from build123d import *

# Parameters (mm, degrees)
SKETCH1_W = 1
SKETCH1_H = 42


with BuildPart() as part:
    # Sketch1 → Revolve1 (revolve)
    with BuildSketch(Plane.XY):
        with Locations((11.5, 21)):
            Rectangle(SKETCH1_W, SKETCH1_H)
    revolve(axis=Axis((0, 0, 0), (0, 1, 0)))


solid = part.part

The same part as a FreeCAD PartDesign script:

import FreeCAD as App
import Part
import Sketcher

V = App.Vector


def add_polygon(sketch, points):
    """Adds a closed chain of lines whose ends are joined by coincident constraints."""
    first, n = sketch.GeometryCount, len(points)
    for a, b in zip(points, points[1:] + points[:1]):
        sketch.addGeometry(Part.LineSegment(App.Vector(*a, 0), App.Vector(*b, 0)), False)
    for i in range(n):
        sketch.addConstraint(Sketcher.Constraint("Coincident", first + i, 2, first + (i + 1) % n, 1))

doc = App.newDocument("Part")
body = doc.addObject("PartDesign::Body", "Body")

# Sketch on XY plane
sketch1 = doc.addObject("Sketcher::SketchObject", "Sketch")
body.addObject(sketch1)
sketch1.AttachmentSupport = (doc.XY_Plane, [""])
sketch1.MapMode = "FlatFace"
add_polygon(sketch1, [(11, 42), (11, 0), (12, 0), (12, 42)])  # lines 0-3
sketch1.addConstraint([
    Sketcher.Constraint("Vertical", 0),
    Sketcher.Constraint("Horizontal", 1),
    Sketcher.Constraint("Vertical", 2),
    Sketcher.Constraint("Horizontal", 3),
    Sketcher.Constraint("PointOnObject", 0, 2, -1),
    Sketcher.Constraint("DistanceX", 1, 1, 1, 2, 1.0),
    Sketcher.Constraint("DistanceY", 0, 2, 0, 1, 42.0),
    Sketcher.Constraint("DistanceX", -1, 1, 0, 2, 11.0),
])
revolution = doc.addObject("PartDesign::Revolution", "Revolution")
body.addObject(revolution)
revolution.Profile = sketch1
revolution.ReferenceAxis = (sketch1, ["V_Axis"])
revolution.Angle = 360

doc.recompute()
